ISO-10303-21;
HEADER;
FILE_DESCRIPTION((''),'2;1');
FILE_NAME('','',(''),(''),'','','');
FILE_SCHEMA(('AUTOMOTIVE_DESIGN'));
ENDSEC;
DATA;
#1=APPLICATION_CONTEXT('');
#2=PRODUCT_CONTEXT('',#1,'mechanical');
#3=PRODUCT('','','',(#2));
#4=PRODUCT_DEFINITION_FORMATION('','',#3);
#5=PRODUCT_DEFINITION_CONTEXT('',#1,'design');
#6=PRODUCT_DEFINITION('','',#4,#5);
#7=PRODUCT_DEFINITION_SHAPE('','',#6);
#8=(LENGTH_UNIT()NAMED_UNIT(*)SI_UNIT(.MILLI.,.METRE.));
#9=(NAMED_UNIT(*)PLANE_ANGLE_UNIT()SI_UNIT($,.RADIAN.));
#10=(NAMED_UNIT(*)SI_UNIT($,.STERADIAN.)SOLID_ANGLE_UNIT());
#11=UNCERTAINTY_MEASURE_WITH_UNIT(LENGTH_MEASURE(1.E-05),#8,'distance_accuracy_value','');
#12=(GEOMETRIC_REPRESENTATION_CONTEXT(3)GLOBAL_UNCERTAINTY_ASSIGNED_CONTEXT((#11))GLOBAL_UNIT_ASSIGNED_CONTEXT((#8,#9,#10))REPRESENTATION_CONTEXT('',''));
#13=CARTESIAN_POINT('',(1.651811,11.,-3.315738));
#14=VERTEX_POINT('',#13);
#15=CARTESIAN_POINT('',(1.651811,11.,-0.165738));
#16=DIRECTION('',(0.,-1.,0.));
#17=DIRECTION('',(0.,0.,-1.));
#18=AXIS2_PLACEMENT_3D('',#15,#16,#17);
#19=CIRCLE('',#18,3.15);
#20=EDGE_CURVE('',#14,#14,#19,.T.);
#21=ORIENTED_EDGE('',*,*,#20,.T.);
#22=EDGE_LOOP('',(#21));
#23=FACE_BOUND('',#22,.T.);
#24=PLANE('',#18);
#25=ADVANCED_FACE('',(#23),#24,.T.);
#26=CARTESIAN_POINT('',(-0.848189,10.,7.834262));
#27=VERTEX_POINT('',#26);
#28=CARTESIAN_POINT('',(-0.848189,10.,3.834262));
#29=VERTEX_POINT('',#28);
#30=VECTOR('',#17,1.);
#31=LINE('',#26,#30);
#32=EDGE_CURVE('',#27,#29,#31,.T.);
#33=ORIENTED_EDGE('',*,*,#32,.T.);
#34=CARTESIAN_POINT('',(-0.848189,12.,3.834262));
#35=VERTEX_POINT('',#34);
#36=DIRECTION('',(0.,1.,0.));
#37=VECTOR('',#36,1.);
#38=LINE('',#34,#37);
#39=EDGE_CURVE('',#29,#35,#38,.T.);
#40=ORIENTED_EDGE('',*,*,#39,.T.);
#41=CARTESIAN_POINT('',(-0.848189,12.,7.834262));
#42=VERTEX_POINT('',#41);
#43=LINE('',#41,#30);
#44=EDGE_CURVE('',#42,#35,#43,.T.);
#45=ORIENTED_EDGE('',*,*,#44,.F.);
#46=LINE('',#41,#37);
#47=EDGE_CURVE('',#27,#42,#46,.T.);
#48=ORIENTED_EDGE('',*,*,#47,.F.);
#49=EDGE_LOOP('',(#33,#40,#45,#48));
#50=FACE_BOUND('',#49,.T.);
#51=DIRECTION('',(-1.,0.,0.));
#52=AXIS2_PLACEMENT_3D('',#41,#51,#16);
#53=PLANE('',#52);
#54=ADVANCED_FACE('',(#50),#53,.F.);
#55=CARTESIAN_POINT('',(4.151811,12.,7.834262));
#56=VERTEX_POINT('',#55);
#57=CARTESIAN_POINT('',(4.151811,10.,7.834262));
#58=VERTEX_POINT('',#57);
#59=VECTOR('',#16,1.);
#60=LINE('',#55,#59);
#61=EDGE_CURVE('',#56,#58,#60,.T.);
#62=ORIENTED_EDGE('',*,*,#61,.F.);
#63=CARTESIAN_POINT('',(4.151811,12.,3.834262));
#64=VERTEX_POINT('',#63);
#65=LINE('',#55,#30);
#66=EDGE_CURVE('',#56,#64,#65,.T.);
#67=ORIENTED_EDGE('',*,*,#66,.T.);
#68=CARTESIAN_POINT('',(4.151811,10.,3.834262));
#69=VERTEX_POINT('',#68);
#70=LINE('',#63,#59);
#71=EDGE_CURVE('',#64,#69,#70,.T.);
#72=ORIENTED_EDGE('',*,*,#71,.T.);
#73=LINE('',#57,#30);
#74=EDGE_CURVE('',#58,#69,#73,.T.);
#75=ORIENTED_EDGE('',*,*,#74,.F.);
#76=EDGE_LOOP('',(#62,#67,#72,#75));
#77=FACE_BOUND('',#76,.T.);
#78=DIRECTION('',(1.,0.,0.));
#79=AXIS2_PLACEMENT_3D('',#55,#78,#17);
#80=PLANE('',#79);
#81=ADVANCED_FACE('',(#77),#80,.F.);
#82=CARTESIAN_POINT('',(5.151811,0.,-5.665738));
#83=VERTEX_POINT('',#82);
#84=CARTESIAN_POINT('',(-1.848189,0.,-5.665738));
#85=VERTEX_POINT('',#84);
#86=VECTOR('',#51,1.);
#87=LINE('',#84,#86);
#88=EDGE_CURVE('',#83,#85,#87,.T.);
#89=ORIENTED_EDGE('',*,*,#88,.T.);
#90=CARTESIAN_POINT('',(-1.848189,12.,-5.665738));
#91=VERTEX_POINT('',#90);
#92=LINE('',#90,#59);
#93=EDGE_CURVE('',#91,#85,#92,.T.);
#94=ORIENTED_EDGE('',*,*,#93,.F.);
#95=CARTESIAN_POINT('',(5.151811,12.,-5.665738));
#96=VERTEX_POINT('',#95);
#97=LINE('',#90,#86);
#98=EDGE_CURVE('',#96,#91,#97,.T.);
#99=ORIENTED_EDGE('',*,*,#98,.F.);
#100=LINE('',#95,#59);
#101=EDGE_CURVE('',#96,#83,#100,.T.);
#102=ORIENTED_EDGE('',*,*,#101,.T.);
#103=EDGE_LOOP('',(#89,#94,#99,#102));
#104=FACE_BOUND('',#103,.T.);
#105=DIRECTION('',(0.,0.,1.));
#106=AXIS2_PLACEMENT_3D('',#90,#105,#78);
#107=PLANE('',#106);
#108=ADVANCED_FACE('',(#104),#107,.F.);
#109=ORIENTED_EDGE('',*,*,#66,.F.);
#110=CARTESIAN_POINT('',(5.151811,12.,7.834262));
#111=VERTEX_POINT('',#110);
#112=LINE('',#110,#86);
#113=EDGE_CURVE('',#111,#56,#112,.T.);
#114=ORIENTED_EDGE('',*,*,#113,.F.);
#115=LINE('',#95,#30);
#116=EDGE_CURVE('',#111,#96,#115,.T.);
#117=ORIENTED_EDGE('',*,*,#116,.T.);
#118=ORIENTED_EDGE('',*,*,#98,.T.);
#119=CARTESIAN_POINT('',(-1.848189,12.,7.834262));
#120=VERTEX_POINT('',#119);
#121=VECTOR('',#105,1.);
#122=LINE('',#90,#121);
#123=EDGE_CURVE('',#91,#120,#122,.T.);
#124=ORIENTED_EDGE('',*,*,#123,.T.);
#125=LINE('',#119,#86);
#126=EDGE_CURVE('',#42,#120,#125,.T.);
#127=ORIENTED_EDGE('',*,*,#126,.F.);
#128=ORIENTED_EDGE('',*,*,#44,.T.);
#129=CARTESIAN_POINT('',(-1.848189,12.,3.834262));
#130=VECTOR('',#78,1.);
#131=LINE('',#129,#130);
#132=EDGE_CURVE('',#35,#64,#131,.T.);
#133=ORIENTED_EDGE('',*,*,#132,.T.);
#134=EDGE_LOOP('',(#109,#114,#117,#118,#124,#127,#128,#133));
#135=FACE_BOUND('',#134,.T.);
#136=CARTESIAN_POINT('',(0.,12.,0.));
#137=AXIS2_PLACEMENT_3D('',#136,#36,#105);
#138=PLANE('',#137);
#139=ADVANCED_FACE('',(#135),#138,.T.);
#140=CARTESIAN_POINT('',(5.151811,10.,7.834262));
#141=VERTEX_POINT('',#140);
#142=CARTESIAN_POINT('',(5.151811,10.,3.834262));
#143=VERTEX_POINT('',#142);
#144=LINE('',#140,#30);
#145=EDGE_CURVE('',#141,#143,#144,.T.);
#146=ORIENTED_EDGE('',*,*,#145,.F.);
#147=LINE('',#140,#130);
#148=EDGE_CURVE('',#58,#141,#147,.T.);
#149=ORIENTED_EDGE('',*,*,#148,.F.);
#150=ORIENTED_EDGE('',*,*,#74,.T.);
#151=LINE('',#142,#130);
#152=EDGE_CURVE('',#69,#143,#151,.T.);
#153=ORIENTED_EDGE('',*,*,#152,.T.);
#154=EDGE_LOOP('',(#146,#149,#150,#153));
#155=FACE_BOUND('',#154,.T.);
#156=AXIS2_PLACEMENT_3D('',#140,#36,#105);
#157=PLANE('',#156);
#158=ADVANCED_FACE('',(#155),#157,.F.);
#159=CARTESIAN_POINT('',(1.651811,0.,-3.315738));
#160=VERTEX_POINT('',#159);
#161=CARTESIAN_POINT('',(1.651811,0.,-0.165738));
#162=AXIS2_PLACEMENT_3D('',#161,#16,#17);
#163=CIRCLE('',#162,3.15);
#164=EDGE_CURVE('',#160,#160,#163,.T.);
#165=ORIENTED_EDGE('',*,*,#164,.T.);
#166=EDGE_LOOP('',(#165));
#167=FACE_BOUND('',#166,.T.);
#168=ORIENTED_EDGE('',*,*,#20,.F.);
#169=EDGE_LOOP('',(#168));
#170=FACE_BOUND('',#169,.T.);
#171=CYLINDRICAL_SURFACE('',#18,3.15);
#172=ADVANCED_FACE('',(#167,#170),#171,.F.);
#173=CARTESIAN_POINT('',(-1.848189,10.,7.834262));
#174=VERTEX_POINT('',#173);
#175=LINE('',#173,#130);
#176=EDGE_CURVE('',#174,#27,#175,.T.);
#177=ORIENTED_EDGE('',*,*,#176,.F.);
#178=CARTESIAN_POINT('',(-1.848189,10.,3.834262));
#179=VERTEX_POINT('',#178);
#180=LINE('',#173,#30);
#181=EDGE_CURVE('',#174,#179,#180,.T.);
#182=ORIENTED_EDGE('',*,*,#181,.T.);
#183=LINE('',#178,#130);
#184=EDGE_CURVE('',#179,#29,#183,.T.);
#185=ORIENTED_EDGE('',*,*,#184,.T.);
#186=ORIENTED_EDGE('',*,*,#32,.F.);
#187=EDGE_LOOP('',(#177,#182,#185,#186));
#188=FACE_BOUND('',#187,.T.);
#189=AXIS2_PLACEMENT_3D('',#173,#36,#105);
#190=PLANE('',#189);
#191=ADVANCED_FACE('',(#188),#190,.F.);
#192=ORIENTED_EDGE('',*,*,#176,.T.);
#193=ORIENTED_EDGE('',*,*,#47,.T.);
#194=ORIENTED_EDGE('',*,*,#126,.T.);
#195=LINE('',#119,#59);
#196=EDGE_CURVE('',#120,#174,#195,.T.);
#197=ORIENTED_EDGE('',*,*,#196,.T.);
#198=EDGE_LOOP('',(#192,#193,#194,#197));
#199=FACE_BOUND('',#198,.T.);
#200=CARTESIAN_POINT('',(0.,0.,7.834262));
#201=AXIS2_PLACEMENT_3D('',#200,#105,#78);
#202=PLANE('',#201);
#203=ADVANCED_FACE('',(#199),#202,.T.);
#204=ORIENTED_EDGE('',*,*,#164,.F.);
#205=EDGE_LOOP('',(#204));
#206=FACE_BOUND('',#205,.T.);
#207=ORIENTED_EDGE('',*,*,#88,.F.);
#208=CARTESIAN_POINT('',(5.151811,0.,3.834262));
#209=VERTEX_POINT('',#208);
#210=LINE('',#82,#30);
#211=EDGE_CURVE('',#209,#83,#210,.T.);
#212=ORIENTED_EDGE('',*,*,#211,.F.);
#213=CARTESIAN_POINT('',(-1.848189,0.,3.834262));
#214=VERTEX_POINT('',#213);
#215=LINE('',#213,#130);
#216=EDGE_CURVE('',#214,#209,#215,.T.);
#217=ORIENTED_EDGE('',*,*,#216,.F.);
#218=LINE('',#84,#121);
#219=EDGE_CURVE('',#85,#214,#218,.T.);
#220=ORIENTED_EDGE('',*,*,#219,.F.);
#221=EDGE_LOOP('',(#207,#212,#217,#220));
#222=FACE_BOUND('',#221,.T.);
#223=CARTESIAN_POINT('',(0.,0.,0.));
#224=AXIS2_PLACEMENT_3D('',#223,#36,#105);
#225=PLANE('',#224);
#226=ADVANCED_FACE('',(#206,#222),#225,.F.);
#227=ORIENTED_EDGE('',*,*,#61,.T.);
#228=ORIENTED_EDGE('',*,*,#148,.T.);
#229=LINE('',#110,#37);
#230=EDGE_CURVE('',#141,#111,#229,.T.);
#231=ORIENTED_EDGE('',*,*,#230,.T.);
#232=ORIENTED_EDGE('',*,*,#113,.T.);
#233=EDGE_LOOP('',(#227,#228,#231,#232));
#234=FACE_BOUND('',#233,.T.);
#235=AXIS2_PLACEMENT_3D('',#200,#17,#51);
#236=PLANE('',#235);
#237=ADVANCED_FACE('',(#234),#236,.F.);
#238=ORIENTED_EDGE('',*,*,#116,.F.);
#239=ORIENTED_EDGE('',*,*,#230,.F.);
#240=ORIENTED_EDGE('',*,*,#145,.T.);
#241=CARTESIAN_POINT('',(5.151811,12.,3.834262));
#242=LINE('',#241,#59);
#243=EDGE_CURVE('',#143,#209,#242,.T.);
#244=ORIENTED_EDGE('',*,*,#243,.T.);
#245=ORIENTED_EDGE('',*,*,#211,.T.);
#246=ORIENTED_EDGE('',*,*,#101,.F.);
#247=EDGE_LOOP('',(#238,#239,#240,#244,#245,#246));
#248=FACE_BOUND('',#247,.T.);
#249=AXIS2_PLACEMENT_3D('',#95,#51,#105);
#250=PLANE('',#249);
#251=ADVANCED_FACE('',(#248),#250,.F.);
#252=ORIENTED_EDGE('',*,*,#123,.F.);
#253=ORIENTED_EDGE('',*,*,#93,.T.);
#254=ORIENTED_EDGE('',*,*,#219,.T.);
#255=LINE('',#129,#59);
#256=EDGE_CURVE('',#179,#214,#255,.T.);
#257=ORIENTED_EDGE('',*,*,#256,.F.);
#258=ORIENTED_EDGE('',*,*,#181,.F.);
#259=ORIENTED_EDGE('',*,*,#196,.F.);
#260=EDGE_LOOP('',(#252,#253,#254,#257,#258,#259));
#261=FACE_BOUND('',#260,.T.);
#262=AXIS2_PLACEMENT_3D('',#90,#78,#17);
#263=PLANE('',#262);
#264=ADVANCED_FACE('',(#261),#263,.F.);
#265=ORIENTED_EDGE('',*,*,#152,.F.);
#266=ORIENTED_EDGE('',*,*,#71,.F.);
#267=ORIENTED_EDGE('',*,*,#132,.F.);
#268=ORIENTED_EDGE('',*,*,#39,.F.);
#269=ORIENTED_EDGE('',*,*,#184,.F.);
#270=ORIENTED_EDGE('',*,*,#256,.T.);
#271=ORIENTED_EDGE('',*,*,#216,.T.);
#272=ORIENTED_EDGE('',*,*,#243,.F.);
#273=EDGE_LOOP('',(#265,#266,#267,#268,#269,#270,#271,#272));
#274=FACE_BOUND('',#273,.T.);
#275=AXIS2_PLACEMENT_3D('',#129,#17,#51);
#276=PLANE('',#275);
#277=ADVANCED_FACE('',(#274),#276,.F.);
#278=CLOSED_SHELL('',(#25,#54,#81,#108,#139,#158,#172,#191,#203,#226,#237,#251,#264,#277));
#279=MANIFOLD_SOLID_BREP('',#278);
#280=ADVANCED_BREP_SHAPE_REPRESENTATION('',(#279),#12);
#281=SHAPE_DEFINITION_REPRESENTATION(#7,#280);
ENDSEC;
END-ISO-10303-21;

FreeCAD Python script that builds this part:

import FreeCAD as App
import Part
import Sketcher
from FreeCAD import Vector


def add_polygon(sketch, points):
    """Adds a closed chain of lines whose ends are joined by coincident constraints."""
    first, n = sketch.GeometryCount, len(points)
    for a, b in zip(points, points[1:] + points[:1]):
        sketch.addGeometry(Part.LineSegment(App.Vector(*a, 0), App.Vector(*b, 0)), False)
    for i in range(n):
        sketch.addConstraint(Sketcher.Constraint("Coincident", first + i, 2, first + (i + 1) % n, 1))

doc = App.newDocument("Part")
params = doc.addObject("Spreadsheet::Sheet", "Params")
for row, (alias, value) in enumerate([
    ("sketch1_width", "7 mm"),
    ("sketch1_height", "9.5 mm"),
    ("pad1_length", "12 mm"),
    ("sketch2_diameter", "6.3 mm"),
    ("pocket1_length", "11 mm"),
    ("sketch3_width", "1 mm"),
    ("sketch3_height", "2 mm"),
    ("pad2_length", "4 mm"),
], start=1):
    params.set(f"A{row}", alias)
    params.set(f"B{row}", "=" + value)
    params.setAlias(f"B{row}", alias)

body = doc.addObject("PartDesign::Body", "Body")

sketch1 = doc.addObject("Sketcher::SketchObject", "Sketch")
body.addObject(sketch1)
sketch1.AttachmentSupport = (doc.XZ_Plane, [""])
sketch1.MapMode = "FlatFace"
add_polygon(sketch1, [(-2, -6), (-2, 4), (5, 4), (5, -6)])
sketch1.addConstraint(Sketcher.Constraint("Vertical", 0))
sketch1.addConstraint(Sketcher.Constraint("Horizontal", 1))
sketch1.addConstraint(Sketcher.Constraint("Vertical", 2))
sketch1.addConstraint(Sketcher.Constraint("Horizontal", 3))
sketch1.addConstraint(Sketcher.Constraint("DistanceX", 1, 1, 1, 2, 7.0))
sketch1.addConstraint(Sketcher.Constraint("DistanceY", 0, 1, 0, 2, 9.5))
sketch1.addConstraint(Sketcher.Constraint("DistanceX", 0, 2, -1, 1, 1.848189))
sketch1.addConstraint(Sketcher.Constraint("DistanceY", -1, 1, 0, 2, 3.834262))
sketch1.setExpression("Constraints[8]", "Params.sketch1_width")
sketch1.setExpression("Constraints[9]", "Params.sketch1_height")
pad1 = doc.addObject("PartDesign::Pad", "Pad")
body.addObject(pad1)
pad1.Profile = sketch1
pad1.setExpression("Length", "Params.pad1_length")
pad1.Reversed = True

sketch2 = doc.addObject("Sketcher::SketchObject", "Sketch001")
body.addObject(sketch2)
sketch2.AttachmentSupport = (doc.XZ_Plane, [""])
sketch2.MapMode = "FlatFace"
sketch2.addGeometry(Part.Circle(Vector(1.7, -0.2, 0), Vector(0, 0, 1), 3.1), False)
sketch2.addConstraint(Sketcher.Constraint("Diameter", 0, 6.3))
sketch2.addConstraint(Sketcher.Constraint("DistanceX", -1, 1, 0, 3, 1.651811))
sketch2.addConstraint(Sketcher.Constraint("DistanceY", 0, 3, -1, 1, 0.165738))
sketch2.setExpression("Constraints[0]", "Params.sketch2_diameter")
pocket1 = doc.addObject("PartDesign::Pocket", "Pocket")
body.addObject(pocket1)
pocket1.Profile = sketch2
pocket1.setExpression("Length", "Params.pocket1_length")

sketch3 = doc.addObject("Sketcher::SketchObject", "Sketch002")
body.addObject(sketch3)
sketch3.AttachmentSupport = (doc.XY_Plane, [""])
sketch3.MapMode = "FlatFace"
sketch3.AttachmentOffset = App.Placement(Vector(0, 0, 3.834262), App.Rotation())
add_polygon(sketch3, [(-1.8, 12), (-1.8, 10), (-0.8, 10), (-0.8, 12)])
add_polygon(sketch3, [(4.2, 12), (4.2, 10), (5.2, 10), (5.2, 12)])
sketch3.addConstraint(Sketcher.Constraint("Vertical", 0))
sketch3.addConstraint(Sketcher.Constraint("Horizontal", 1))
sketch3.addConstraint(Sketcher.Constraint("Vertical", 2))
sketch3.addConstraint(Sketcher.Constraint("Horizontal", 3))
sketch3.addConstraint(Sketcher.Constraint("Vertical", 4))
sketch3.addConstraint(Sketcher.Constraint("Horizontal", 5))
sketch3.addConstraint(Sketcher.Constraint("Vertical", 6))
sketch3.addConstraint(Sketcher.Constraint("Horizontal", 7))
sketch3.addConstraint(Sketcher.Constraint("Horizontal", 1, 2, 4, 2))
sketch3.addConstraint(Sketcher.Constraint("Horizontal", 3, 2, 6, 2))
sketch3.addConstraint(Sketcher.Constraint("Equal", 3, 5))
sketch3.addConstraint(Sketcher.Constraint("DistanceX", 1, 1, 1, 2, 1.0))
sketch3.addConstraint(Sketcher.Constraint("DistanceY", 0, 2, 0, 1, 2.0))
sketch3.addConstraint(Sketcher.Constraint("DistanceY", -1, 1, 0, 2, 10.0))
sketch3.addConstraint(Sketcher.Constraint("DistanceX", 1, 2, 4, 2, 5.0))
sketch3.addConstraint(Sketcher.Constraint("DistanceX", 0, 2, -1, 1, 1.848189))
sketch3.setExpression("Constraints[19]", "Params.sketch3_width")
sketch3.setExpression("Constraints[20]", "Params.sketch3_height")
pad2 = doc.addObject("PartDesign::Pad", "Pad001")
body.addObject(pad2)
pad2.Profile = sketch3
pad2.setExpression("Length", "Params.pad2_length")

doc.recompute()
